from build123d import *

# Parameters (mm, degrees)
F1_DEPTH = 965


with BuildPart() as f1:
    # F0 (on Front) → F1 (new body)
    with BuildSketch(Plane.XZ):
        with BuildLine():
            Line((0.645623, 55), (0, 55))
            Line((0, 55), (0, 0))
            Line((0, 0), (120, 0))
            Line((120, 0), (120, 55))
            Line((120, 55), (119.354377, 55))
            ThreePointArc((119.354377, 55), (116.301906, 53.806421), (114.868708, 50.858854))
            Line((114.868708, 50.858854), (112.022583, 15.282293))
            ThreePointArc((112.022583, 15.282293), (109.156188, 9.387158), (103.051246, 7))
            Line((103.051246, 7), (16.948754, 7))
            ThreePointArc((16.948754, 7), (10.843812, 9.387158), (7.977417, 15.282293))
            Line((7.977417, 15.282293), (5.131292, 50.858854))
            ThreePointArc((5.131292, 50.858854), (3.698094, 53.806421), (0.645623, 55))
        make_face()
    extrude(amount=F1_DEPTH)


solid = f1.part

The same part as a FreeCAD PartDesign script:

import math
import FreeCAD as App
import Part
import Sketcher
Q = App.Units.Quantity

doc = App.newDocument("Part")
body = doc.addObject("PartDesign::Body", "Body")

sketch1 = doc.addObject("Sketcher::SketchObject", "Sketch")
body.addObject(sketch1)
sketch1.AttachmentSupport = (doc.XZ_Plane, [""])
sketch1.MapMode = "FlatFace"
sketch1.addGeometry([
    Part.LineSegment(App.Vector(0.645623, 55, 0), App.Vector(0, 55, 0)),
    Part.LineSegment(App.Vector(0, 55, 0), App.Vector(0, 0, 0)),
    Part.LineSegment(App.Vector(0, 0, 0), App.Vector(120, 0, 0)),
    Part.LineSegment(App.Vector(120, 0, 0), App.Vector(120, 55, 0)),
    Part.LineSegment(App.Vector(120, 55, 0), App.Vector(119.354377, 55, 0)),
    Part.ArcOfCircle(Part.Circle(App.Vector(119.354377, 50.499999, 0), App.Vector(0, 0, 1), 4.500001), math.radians(90.000006), math.radians(175.426063)),
    Part.LineSegment(App.Vector(114.868708, 50.858854, 0), App.Vector(112.022583, 15.282293, 0)),
    Part.ArcOfCircle(Part.Circle(App.Vector(103.051246, 16, 0), App.Vector(0, 0, 1), 9), math.radians(-89.999999), math.radians(-4.573919)),
    Part.LineSegment(App.Vector(103.051246, 7, 0), App.Vector(16.948754, 7, 0)),
    Part.ArcOfCircle(Part.Circle(App.Vector(16.948754, 16, 0), App.Vector(0, 0, 1), 9), math.radians(-175.426081), math.radians(-90.000001)),
    Part.LineSegment(App.Vector(7.977417, 15.282293, 0), App.Vector(5.131292, 50.858854, 0)),
    Part.ArcOfCircle(Part.Circle(App.Vector(0.645623, 50.499999, 0), App.Vector(0, 0, 1), 4.500001), math.radians(4.573937), math.radians(89.999994)),
], False)
sketch1.addConstraint([
    Sketcher.Constraint("Coincident", 0, 2, 1, 1),
    Sketcher.Constraint("Coincident", 1, 2, 2, 1),
    Sketcher.Constraint("Coincident", 2, 2, 3, 1),
    Sketcher.Constraint("Coincident", 3, 2, 4, 1),
    Sketcher.Constraint("Tangent", 4, 2, 5, 1),
    Sketcher.Constraint("Tangent", 5, 2, 6, 1),
    Sketcher.Constraint("Tangent", 6, 2, 7, 2),
    Sketcher.Constraint("Tangent", 7, 1, 8, 1),
    Sketcher.Constraint("Tangent", 8, 2, 9, 2),
    Sketcher.Constraint("Tangent", 9, 1, 10, 1),
    Sketcher.Constraint("Tangent", 10, 2, 11, 1),
    Sketcher.Constraint("Tangent", 11, 2, 0, 1),
    Sketcher.Constraint("Horizontal", 0),
    Sketcher.Constraint("Vertical", 1),
    Sketcher.Constraint("Horizontal", 2),
    Sketcher.Constraint("Vertical", 3),
    Sketcher.Constraint("Horizontal", 4),
    Sketcher.Constraint("Horizontal", 8),
    Sketcher.Constraint("Coincident", 1, 2, -1, 1),
    Sketcher.Constraint("Equal", 7, 9),
    Sketcher.Constraint("Equal", 5, 11),
    Sketcher.Constraint("Horizontal", 5, 3, 11, 3),
    Sketcher.Constraint("Horizontal", 6, 2, 9, 1),
    Sketcher.Constraint("Equal", 0, 4),
    Sketcher.Constraint("Radius", 7, Q("9 mm")),
    Sketcher.Constraint("Radius", 5, Q("4.500001 mm")),
    Sketcher.Constraint("DistanceX", 2, 1, 2, 2, Q("120 mm")),
    Sketcher.Constraint("DistanceY", 1, 2, 1, 1, Q("55 mm")),
    Sketcher.Constraint("DistanceY", -1, 1, 7, 3, Q("16 mm")),
    Sketcher.Constraint("DistanceX", 0, 2, 0, 1, Q("0.645623 mm")),
    Sketcher.Constraint("DistanceX", 8, 2, 8, 1, Q("86.102492 mm")),
])
pad1 = doc.addObject("PartDesign::Pad", "Pad")
body.addObject(pad1)
pad1.Profile = sketch1
pad1.Length = 965

doc.recompute()
